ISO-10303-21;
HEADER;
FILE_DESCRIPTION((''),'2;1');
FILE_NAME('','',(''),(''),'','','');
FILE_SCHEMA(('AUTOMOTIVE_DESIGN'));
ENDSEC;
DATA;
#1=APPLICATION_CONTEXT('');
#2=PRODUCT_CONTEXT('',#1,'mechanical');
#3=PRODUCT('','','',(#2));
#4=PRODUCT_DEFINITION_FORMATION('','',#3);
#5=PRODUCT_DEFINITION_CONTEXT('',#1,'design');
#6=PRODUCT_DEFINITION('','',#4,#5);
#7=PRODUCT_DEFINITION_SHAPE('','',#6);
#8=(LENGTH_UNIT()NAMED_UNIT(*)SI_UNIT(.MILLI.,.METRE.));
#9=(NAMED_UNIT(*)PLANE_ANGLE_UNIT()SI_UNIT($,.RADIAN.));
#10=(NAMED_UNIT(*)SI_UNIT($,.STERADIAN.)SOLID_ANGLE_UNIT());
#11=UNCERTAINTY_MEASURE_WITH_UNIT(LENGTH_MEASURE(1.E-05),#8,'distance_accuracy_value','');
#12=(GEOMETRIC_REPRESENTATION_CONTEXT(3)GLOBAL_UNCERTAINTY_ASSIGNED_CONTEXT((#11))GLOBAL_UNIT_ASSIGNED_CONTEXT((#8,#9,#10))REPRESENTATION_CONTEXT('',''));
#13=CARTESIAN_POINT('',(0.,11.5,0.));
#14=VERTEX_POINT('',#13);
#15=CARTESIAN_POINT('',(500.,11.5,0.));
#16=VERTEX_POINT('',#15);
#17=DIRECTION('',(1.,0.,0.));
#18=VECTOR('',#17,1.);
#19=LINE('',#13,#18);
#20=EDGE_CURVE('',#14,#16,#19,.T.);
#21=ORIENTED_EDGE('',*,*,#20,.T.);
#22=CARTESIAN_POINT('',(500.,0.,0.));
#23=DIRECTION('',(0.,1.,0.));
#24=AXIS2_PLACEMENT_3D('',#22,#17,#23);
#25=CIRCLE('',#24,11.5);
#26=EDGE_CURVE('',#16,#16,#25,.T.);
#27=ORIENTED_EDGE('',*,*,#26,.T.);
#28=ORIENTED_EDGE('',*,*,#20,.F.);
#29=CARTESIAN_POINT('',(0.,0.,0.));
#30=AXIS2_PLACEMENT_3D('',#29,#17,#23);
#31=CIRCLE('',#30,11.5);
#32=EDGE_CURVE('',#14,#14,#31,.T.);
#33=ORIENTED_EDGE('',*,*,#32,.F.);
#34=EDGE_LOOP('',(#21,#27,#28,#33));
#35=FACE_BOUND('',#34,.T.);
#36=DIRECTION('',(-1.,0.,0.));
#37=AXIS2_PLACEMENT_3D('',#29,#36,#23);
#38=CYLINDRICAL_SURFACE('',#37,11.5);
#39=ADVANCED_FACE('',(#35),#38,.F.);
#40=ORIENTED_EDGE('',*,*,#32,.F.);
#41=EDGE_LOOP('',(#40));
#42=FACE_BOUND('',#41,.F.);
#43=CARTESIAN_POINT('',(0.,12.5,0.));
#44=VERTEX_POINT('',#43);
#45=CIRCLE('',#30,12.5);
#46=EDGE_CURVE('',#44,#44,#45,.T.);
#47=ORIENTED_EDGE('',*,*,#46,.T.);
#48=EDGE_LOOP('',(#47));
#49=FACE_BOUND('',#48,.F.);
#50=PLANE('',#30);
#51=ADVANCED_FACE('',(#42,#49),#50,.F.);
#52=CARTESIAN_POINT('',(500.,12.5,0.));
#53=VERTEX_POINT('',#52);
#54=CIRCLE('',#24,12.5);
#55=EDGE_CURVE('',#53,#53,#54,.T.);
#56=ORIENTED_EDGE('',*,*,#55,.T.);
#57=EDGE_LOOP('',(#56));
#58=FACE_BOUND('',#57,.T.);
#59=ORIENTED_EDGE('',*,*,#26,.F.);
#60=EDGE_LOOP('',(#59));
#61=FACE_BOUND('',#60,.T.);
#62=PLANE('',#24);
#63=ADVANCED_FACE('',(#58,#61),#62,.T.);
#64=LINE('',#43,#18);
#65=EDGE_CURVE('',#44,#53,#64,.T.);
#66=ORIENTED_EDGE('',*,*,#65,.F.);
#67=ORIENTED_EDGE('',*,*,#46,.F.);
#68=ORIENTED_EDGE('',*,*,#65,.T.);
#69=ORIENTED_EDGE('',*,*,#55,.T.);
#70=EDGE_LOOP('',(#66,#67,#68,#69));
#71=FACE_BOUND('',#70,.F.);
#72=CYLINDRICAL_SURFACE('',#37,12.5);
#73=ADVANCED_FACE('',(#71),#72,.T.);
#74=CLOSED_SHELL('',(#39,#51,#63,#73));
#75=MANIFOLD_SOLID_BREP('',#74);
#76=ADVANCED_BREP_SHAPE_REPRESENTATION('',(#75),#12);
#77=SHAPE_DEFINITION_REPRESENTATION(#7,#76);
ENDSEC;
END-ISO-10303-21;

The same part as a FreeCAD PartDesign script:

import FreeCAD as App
import Part
import Sketcher

doc = App.newDocument("Part")
body = doc.addObject("PartDesign::Body", "Body")

sketch1 = body.newObject("Sketcher::SketchObject", "Sketch")
sketch1.AttachmentSupport = (doc.getObject("YZ_Plane"), [""])
sketch1.MapMode = "FlatFace"
sketch1.addGeometry(Part.Circle(App.Vector(0, 0, 0), App.Vector(0, 0, 1), 12), False)
sketch1.addGeometry(Part.Circle(App.Vector(0, 0, 0), App.Vector(0, 0, 1), 12), False)
sketch1.addConstraint(Sketcher.Constraint("Coincident", 0, 3, -1, 1))
sketch1.addConstraint(Sketcher.Constraint("Coincident", 1, 3, -1, 1))
sketch1.addConstraint(Sketcher.Constraint("Diameter", 0, 25.0))
sketch1.addConstraint(Sketcher.Constraint("Diameter", 1, 23.0))
pad1 = body.newObject("PartDesign::Pad", "Pad")
pad1.Profile = sketch1
pad1.Length = 500

doc.recompute()
